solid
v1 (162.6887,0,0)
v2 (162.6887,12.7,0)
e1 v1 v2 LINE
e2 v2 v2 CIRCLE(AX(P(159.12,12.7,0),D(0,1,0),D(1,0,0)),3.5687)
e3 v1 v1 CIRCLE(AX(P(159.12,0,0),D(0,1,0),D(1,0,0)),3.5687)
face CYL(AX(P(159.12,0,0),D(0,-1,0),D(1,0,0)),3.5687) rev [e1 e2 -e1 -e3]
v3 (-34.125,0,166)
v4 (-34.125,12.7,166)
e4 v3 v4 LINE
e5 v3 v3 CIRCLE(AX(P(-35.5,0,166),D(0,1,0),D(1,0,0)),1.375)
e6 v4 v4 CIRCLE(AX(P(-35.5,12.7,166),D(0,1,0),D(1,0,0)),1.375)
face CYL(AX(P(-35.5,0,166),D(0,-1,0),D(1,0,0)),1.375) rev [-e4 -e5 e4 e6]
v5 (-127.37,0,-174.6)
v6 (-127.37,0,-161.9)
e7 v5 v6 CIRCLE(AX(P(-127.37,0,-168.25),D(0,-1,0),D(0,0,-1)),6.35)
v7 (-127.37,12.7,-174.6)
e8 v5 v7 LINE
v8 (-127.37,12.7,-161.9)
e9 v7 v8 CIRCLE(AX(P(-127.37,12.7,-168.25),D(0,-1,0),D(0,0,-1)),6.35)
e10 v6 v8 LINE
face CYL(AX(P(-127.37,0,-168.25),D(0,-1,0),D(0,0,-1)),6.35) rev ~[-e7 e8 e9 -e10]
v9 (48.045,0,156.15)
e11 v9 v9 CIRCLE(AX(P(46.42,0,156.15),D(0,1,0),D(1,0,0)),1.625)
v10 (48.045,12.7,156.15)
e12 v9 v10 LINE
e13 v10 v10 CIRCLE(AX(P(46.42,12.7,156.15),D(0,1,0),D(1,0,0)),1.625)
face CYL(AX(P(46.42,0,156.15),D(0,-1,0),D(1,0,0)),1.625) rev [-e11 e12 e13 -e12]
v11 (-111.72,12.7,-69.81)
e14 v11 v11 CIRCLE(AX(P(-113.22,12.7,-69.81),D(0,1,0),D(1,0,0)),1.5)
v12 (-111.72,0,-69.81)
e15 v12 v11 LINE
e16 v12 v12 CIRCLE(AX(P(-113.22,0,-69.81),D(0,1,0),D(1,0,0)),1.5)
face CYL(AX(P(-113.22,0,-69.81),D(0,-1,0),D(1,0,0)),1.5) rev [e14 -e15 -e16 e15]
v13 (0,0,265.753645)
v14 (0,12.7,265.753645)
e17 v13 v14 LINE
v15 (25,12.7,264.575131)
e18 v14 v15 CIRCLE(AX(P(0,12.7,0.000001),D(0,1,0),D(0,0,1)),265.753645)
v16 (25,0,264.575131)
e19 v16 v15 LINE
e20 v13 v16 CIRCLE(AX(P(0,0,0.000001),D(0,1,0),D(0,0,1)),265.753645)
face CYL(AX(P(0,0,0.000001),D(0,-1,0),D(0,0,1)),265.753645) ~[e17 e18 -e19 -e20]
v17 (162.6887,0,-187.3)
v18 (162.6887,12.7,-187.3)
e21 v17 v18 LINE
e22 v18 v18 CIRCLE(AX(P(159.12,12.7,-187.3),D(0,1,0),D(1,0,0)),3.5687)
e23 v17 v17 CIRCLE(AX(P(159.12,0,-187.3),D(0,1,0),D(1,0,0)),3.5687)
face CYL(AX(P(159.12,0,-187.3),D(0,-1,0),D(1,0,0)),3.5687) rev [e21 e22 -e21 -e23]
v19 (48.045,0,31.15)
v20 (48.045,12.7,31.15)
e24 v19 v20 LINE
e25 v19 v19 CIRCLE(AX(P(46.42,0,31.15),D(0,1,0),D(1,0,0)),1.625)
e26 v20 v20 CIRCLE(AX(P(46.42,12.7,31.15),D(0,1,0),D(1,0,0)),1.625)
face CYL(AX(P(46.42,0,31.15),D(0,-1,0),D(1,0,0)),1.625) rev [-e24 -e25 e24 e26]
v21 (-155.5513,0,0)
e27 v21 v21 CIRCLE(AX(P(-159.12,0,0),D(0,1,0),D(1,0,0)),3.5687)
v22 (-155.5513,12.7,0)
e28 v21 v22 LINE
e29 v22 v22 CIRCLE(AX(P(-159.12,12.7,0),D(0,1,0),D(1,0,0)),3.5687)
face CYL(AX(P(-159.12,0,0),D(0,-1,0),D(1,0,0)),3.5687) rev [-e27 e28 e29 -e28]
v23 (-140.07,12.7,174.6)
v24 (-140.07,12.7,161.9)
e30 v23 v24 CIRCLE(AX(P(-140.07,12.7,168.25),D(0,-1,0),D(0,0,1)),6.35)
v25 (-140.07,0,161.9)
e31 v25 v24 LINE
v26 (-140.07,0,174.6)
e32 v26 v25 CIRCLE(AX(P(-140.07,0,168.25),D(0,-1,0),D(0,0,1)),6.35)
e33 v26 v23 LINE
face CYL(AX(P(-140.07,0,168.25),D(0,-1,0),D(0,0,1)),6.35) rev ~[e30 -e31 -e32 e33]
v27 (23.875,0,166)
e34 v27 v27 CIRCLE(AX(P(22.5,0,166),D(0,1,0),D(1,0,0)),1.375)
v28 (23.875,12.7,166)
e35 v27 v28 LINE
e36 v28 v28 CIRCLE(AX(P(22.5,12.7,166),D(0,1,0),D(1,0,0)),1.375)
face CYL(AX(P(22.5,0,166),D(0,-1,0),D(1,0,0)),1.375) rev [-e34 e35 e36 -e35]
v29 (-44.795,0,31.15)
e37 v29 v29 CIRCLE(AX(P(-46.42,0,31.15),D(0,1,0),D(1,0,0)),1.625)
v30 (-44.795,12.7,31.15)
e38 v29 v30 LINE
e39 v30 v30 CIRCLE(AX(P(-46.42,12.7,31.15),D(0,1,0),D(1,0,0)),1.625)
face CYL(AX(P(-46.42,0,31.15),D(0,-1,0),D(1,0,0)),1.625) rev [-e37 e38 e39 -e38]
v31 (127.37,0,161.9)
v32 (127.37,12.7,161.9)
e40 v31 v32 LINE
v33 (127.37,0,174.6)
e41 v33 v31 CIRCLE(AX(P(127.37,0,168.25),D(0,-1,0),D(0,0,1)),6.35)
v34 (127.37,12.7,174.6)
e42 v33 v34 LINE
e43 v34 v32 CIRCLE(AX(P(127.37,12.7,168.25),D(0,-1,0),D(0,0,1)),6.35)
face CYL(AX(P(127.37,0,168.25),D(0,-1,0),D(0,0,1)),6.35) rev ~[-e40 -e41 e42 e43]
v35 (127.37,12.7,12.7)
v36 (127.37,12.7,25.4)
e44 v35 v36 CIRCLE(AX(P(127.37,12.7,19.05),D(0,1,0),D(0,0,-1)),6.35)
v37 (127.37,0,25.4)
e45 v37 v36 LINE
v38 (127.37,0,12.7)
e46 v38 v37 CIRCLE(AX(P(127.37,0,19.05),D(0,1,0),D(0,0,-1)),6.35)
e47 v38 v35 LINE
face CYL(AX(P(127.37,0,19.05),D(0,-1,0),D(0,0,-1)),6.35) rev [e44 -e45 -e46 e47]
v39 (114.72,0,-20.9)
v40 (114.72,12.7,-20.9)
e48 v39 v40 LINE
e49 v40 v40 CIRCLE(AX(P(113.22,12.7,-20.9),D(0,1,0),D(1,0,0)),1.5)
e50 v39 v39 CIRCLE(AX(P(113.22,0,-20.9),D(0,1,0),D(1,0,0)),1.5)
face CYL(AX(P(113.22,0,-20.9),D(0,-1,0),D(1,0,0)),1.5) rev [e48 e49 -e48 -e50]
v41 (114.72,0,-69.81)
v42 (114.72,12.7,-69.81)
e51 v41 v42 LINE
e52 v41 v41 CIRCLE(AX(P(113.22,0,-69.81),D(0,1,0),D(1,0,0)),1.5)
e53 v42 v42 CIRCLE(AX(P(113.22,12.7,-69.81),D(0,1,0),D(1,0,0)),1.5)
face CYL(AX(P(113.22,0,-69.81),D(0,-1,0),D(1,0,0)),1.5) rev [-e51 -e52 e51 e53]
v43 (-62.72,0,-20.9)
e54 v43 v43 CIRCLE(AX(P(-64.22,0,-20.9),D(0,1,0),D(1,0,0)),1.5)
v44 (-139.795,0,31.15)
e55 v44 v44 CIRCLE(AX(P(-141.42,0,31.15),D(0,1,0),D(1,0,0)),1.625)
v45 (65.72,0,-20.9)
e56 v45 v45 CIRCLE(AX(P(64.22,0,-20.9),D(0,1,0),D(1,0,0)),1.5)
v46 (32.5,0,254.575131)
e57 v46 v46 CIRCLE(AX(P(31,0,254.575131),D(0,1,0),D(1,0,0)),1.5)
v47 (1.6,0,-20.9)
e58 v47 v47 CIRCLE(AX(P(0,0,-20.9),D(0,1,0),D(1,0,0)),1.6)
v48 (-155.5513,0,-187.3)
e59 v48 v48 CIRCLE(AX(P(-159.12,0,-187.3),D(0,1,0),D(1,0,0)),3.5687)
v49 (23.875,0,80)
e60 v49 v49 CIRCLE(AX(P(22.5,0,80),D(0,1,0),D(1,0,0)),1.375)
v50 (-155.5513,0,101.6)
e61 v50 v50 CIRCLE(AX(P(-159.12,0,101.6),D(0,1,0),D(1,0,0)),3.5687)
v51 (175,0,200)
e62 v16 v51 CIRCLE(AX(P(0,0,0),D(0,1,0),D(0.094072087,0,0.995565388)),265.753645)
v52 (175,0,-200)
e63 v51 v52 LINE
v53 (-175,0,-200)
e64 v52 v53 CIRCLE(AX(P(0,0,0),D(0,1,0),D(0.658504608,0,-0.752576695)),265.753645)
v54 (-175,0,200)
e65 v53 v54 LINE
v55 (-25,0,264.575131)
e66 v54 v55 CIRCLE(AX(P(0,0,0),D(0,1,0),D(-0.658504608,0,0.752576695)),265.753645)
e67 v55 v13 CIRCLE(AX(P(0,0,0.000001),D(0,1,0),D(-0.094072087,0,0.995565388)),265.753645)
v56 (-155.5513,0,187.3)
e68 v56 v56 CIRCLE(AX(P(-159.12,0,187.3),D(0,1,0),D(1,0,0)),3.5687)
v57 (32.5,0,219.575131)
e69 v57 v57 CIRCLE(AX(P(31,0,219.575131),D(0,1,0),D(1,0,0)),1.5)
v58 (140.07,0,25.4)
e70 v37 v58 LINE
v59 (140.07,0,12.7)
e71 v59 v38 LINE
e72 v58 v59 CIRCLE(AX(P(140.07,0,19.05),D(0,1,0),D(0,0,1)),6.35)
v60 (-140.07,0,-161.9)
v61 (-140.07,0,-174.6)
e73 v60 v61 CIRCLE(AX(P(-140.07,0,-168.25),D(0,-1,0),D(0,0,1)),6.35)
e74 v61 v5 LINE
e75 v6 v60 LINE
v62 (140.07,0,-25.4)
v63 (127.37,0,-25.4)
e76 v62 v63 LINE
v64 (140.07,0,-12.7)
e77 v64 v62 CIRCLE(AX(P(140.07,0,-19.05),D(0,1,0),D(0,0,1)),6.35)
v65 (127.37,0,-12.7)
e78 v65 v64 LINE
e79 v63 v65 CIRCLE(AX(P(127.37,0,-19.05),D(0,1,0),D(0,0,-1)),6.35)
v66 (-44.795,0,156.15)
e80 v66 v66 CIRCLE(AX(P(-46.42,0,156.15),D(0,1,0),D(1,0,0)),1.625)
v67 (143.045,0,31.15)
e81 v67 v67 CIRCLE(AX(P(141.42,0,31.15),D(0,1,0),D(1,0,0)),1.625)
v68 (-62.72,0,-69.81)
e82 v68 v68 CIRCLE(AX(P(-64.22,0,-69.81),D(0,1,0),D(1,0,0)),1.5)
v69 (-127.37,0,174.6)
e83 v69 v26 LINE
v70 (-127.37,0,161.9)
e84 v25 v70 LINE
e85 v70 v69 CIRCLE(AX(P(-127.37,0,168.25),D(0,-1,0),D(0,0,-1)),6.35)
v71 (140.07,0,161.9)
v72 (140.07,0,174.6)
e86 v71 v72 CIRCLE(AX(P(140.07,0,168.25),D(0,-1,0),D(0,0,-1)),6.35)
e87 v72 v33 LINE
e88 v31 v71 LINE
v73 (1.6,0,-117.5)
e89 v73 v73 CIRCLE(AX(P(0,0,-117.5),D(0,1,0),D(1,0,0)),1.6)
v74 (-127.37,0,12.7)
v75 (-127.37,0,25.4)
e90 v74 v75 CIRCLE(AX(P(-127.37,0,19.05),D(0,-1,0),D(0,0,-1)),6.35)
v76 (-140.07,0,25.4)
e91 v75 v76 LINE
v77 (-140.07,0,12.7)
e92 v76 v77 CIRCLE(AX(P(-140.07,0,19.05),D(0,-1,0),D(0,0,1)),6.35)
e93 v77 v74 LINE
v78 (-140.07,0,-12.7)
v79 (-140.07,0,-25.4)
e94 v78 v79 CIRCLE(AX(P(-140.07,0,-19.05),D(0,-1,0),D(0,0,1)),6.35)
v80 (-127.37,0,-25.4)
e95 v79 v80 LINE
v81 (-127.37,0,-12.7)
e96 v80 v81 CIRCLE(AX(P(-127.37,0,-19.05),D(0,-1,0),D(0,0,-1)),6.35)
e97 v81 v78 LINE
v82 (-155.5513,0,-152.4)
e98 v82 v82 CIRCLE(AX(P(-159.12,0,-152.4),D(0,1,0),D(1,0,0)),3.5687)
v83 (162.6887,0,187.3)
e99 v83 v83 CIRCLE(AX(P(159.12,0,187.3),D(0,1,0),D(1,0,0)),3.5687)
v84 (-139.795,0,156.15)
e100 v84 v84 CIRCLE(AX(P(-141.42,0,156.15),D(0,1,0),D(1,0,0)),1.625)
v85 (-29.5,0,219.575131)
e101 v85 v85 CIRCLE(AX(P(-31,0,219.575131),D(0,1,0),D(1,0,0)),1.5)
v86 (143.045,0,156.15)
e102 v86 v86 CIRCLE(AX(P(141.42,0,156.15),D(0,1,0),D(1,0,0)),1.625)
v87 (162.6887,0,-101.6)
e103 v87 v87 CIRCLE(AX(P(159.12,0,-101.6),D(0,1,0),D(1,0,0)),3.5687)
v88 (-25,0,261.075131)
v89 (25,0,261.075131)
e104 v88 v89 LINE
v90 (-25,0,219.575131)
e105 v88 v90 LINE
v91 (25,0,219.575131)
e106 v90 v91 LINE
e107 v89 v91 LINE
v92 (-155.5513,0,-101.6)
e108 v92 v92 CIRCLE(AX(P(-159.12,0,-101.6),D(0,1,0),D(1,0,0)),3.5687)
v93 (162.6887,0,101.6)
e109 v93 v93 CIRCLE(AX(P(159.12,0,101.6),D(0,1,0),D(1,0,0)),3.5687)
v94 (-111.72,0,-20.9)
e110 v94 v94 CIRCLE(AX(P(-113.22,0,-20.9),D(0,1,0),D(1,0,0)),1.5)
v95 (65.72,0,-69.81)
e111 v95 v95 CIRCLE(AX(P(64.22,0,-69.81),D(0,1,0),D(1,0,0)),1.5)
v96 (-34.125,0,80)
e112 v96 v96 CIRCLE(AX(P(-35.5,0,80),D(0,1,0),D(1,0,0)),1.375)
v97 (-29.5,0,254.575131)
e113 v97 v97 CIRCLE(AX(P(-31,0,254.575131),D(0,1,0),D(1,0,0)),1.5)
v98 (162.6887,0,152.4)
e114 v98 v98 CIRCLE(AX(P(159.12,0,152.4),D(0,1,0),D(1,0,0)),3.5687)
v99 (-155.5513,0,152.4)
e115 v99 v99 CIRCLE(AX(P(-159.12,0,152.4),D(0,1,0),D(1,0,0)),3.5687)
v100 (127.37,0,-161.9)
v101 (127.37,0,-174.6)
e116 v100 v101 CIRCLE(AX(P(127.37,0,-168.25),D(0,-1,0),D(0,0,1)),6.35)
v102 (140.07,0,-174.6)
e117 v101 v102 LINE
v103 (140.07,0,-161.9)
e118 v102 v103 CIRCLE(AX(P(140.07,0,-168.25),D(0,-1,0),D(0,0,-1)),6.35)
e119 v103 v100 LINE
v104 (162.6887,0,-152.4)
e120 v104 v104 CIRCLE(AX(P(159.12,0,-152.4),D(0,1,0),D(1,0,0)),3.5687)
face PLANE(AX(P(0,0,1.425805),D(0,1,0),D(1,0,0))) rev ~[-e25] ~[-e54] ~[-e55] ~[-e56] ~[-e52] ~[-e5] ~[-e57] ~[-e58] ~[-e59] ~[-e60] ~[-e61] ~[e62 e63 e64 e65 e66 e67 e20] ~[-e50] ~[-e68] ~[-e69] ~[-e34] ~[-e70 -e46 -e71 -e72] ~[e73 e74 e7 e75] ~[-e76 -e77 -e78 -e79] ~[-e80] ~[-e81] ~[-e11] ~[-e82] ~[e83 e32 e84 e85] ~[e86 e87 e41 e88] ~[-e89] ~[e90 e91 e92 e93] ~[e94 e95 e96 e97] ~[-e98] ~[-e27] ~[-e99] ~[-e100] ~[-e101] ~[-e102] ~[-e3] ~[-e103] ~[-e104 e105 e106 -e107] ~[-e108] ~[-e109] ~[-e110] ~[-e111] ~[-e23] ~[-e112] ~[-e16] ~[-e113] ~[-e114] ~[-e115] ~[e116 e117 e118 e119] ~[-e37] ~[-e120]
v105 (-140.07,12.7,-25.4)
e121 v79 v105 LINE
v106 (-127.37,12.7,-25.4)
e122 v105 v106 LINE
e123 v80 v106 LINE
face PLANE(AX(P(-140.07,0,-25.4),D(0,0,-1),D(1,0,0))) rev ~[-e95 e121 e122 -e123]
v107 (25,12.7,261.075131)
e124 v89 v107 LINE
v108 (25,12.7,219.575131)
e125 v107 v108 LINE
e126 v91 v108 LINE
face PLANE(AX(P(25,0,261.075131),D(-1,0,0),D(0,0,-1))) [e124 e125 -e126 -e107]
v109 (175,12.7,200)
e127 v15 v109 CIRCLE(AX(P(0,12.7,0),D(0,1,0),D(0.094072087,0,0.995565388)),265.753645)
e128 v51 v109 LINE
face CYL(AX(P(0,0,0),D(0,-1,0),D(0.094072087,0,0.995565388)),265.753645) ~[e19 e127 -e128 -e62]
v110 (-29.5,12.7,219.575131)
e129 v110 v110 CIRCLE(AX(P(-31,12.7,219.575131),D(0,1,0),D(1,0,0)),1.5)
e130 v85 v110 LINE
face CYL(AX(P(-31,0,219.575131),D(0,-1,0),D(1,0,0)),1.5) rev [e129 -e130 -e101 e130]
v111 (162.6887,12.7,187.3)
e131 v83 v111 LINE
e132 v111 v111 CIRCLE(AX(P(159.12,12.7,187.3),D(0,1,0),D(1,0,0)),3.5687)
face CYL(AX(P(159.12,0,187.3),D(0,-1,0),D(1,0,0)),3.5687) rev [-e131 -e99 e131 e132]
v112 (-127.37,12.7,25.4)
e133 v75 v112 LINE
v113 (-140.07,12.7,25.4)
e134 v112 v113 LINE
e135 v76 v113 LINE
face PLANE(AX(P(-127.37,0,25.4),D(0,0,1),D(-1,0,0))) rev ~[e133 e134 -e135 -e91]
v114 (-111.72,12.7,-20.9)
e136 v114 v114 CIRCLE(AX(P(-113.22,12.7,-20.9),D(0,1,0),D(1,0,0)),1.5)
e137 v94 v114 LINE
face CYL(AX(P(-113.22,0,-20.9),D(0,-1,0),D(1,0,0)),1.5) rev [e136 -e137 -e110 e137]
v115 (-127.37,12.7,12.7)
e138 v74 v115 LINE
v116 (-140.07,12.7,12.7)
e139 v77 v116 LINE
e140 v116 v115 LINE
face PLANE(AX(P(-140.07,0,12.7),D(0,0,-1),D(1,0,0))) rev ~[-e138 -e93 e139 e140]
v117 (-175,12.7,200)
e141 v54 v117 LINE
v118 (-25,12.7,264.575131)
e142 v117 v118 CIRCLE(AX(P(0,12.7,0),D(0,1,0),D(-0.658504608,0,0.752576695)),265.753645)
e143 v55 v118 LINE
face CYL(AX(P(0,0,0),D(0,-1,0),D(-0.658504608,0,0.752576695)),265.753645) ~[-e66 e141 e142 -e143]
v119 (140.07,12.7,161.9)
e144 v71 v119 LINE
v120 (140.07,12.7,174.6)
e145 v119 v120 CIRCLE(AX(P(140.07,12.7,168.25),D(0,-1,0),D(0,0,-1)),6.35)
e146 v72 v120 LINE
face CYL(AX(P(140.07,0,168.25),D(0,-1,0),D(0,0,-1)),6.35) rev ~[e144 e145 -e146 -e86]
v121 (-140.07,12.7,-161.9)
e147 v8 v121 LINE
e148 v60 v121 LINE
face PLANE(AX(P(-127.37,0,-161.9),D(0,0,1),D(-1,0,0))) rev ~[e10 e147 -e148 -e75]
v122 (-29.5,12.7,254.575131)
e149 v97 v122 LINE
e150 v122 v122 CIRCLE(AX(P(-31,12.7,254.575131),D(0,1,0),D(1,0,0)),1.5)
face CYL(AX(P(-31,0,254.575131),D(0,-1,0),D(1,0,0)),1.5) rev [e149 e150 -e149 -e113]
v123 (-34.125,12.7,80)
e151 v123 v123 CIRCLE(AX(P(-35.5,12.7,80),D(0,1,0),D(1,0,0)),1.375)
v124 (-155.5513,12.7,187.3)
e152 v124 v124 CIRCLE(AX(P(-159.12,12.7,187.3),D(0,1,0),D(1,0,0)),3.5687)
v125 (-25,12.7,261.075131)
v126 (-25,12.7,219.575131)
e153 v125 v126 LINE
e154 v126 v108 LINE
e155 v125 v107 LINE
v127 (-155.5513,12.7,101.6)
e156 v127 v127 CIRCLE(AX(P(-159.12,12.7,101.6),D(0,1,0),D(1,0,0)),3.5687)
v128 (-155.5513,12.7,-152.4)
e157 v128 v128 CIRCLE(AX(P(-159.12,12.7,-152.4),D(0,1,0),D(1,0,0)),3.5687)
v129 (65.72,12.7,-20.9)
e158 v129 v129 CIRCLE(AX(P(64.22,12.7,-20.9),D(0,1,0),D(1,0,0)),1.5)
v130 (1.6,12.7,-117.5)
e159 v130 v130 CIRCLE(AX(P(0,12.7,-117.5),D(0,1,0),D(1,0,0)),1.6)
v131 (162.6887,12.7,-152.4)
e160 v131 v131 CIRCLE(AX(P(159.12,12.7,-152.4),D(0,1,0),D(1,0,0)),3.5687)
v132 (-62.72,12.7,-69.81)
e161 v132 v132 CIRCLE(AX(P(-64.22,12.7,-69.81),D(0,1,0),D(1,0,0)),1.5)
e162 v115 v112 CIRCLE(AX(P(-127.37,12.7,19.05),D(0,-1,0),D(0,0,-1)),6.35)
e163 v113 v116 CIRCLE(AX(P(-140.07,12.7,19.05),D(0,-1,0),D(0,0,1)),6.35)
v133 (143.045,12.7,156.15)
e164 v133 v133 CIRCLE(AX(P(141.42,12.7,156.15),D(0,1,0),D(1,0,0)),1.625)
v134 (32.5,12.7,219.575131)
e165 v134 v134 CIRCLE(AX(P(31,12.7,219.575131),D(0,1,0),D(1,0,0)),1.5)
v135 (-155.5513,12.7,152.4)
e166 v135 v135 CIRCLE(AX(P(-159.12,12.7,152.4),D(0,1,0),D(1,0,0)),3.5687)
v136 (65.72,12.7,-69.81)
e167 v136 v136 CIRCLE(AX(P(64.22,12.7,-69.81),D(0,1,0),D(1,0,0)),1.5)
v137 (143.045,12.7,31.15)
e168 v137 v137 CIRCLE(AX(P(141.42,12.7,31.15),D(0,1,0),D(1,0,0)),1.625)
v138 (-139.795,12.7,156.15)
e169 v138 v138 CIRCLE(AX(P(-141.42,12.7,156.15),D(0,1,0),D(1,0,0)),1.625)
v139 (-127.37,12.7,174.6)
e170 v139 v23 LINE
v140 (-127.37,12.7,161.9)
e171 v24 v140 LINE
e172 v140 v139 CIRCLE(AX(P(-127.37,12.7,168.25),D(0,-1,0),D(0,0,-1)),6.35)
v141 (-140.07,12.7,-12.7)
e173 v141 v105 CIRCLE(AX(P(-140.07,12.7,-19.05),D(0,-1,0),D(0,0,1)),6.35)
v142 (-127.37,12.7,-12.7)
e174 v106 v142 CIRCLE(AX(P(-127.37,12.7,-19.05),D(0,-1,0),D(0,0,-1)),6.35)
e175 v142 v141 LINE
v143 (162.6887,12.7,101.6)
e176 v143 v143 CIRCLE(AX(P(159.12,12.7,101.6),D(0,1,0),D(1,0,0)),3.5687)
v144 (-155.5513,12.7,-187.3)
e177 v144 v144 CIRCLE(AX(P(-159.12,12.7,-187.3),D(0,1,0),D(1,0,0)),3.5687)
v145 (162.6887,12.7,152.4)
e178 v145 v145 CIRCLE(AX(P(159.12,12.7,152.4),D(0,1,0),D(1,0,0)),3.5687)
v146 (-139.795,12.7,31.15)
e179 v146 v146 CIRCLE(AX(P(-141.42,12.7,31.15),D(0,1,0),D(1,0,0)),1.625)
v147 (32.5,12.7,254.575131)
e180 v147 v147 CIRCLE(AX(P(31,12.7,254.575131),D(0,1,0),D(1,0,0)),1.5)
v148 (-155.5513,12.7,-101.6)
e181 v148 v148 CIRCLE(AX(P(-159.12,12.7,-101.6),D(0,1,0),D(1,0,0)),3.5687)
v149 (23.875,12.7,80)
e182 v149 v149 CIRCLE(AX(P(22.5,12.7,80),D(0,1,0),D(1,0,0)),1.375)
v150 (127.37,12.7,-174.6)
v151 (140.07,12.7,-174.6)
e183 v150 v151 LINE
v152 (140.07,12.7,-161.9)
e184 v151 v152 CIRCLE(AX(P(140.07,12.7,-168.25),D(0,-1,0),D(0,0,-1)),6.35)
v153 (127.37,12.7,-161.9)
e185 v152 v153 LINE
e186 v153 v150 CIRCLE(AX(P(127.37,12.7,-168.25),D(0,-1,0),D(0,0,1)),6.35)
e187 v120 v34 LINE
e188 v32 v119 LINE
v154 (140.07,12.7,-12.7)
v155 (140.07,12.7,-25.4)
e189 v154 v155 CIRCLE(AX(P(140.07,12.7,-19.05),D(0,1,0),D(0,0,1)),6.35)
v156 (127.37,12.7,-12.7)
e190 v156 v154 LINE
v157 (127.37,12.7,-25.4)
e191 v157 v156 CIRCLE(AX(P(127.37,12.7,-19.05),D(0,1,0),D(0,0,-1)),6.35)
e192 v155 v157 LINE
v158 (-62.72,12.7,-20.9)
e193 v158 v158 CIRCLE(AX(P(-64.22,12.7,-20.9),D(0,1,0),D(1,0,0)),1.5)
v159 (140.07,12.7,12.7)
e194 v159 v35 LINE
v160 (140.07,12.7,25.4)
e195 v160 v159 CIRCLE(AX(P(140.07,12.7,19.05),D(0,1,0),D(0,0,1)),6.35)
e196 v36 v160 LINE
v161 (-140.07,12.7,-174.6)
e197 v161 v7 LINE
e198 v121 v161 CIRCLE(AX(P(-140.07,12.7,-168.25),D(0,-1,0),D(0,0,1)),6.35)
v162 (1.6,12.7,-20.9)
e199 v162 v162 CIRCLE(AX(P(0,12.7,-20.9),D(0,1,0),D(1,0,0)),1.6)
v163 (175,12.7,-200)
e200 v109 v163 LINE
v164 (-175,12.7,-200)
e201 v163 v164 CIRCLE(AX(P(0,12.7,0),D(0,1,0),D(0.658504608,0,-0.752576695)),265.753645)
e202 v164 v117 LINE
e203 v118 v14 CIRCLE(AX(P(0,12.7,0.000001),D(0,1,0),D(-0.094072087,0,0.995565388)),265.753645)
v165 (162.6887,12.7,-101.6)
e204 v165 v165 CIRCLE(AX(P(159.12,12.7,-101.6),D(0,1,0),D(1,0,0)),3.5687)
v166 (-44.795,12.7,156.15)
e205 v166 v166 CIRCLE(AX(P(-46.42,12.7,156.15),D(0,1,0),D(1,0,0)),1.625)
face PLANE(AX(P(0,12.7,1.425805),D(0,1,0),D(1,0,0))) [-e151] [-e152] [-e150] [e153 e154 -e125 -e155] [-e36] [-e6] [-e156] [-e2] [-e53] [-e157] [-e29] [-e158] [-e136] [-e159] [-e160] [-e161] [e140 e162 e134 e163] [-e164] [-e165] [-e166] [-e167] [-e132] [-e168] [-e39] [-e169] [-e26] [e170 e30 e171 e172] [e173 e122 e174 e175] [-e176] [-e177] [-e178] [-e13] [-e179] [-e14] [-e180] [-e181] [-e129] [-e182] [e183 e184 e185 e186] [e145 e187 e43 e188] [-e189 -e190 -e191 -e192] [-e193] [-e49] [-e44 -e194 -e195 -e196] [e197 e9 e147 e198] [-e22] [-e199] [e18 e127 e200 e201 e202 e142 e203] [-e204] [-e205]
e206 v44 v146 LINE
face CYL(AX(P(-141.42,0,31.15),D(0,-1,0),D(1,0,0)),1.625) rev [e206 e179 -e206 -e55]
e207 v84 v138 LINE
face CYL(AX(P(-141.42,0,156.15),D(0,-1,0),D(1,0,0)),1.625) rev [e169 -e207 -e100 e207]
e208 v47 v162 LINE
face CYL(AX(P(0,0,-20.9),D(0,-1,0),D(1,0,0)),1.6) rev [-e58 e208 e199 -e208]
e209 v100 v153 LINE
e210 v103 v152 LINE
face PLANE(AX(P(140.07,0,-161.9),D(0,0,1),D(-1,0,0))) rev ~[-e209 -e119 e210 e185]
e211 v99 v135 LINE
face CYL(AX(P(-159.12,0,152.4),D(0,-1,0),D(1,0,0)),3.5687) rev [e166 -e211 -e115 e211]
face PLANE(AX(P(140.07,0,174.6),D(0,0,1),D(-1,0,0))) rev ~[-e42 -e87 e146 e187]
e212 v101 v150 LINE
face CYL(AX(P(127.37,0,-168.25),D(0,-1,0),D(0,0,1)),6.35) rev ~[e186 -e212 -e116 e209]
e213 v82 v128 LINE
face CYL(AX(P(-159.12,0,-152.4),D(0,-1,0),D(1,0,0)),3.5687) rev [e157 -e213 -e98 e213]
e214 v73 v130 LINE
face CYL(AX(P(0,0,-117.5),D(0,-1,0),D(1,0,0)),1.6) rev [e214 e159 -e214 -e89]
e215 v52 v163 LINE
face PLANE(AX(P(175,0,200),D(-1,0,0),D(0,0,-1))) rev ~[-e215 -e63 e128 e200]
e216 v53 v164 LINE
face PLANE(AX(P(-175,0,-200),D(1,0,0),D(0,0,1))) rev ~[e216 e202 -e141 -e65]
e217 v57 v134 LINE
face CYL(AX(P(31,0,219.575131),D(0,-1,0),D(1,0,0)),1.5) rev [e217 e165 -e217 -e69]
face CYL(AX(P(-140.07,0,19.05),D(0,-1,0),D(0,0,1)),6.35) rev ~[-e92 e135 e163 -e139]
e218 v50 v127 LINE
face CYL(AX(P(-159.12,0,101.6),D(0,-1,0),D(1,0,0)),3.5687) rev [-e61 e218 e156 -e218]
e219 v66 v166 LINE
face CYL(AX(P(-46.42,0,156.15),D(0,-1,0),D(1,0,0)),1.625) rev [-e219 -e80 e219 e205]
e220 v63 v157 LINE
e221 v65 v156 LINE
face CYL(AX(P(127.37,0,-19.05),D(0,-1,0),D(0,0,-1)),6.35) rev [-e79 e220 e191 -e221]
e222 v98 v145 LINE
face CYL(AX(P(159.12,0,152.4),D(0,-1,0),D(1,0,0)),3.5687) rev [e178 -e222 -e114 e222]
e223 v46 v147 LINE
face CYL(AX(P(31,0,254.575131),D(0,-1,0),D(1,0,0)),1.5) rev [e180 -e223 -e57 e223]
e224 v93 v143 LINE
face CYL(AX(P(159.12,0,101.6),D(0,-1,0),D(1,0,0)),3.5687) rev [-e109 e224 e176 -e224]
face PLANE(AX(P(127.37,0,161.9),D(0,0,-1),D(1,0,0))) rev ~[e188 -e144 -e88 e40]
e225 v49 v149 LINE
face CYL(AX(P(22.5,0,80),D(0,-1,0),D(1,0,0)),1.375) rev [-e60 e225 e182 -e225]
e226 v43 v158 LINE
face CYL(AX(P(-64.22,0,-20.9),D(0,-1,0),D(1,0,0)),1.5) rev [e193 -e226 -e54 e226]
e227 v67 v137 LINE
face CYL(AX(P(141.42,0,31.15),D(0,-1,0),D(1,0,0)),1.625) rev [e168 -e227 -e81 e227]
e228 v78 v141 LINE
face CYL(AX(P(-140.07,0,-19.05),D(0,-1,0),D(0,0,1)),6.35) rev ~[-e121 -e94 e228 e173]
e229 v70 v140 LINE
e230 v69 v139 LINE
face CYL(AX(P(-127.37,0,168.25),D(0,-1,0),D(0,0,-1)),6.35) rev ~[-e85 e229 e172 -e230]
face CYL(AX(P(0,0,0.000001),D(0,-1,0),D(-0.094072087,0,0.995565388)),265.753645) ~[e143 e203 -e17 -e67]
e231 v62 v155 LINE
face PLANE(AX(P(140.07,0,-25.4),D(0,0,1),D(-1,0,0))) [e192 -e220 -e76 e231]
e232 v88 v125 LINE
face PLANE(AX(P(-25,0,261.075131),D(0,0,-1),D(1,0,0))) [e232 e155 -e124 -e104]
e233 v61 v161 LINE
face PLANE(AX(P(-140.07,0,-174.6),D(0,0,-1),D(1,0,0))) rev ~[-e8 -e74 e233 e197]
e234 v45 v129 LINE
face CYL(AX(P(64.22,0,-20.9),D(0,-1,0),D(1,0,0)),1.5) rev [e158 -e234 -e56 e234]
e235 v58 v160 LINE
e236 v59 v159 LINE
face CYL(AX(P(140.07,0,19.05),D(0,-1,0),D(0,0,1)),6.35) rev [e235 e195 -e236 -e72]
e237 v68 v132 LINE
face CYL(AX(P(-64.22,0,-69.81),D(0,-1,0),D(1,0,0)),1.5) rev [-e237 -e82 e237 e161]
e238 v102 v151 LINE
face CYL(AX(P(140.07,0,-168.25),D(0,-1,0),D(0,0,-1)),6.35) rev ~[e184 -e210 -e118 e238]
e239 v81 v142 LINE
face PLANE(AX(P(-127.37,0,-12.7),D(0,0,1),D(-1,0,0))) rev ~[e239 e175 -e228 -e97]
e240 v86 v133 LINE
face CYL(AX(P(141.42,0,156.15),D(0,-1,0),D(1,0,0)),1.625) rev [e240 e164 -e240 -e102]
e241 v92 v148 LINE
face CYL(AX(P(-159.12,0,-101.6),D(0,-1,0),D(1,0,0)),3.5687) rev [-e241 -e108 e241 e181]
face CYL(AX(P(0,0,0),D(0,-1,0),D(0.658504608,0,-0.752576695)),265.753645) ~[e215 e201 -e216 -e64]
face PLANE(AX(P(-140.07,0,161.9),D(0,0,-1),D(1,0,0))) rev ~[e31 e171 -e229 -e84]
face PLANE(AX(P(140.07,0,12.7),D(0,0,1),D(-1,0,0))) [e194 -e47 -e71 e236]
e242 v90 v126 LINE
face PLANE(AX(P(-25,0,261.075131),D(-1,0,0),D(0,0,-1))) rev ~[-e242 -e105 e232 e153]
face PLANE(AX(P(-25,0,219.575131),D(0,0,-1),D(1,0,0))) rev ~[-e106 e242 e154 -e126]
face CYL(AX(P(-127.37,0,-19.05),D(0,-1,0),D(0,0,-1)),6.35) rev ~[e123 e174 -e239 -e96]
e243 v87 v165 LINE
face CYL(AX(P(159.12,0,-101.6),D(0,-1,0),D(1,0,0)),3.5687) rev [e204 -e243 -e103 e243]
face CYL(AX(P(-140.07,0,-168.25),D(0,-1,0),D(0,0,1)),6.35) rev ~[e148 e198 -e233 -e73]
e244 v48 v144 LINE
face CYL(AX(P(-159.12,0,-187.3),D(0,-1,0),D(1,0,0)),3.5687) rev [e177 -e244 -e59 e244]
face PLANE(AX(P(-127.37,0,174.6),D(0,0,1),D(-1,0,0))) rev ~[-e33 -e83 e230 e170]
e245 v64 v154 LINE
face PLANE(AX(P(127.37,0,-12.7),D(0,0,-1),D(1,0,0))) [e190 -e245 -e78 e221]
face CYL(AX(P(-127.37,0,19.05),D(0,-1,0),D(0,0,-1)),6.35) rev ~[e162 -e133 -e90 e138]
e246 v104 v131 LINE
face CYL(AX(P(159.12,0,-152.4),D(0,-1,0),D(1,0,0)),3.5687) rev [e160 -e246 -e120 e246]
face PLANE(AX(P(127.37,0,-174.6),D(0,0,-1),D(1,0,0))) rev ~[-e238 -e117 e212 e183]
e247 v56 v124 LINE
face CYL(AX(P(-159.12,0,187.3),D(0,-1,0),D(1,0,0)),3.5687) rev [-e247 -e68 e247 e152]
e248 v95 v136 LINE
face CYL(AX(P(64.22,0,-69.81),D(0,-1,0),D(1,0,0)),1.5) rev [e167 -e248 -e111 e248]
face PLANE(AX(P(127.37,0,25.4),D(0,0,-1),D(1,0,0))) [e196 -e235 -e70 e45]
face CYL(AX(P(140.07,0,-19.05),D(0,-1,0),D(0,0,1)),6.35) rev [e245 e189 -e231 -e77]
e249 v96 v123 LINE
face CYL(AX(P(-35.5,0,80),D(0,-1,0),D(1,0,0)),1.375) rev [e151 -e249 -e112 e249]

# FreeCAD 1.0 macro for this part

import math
import FreeCAD as App
import Part
import Sketcher
Q = App.Units.Quantity


def add_polygon(sketch, points):
    """Adds a closed chain of lines whose ends are joined by coincident constraints."""
    first, n = sketch.GeometryCount, len(points)
    for a, b in zip(points, points[1:] + points[:1]):
        sketch.addGeometry(Part.LineSegment(App.Vector(*a, 0), App.Vector(*b, 0)), False)
    for i in range(n):
        sketch.addConstraint(Sketcher.Constraint("Coincident", first + i, 2, first + (i + 1) % n, 1))

doc = App.newDocument("Part")
body = doc.addObject("PartDesign::Body", "Body")

# Sketch on XZ plane
sketch1 = body.newObject("Sketcher::SketchObject", "Sketch")
sketch1.AttachmentSupport = (doc.getObject("XZ_Plane"), [""])
sketch1.MapMode = "FlatFace"
sketch1.addGeometry(Part.LineSegment(App.Vector(175, 200, 0), App.Vector(175, -200, 0)), False)  # 0
sketch1.addGeometry(Part.ArcOfCircle(Part.Circle(App.Vector(0, 0, 0), App.Vector(0, 0, 1), 265.8), math.radians(-131), math.radians(-49)), False)  # 1
sketch1.addGeometry(Part.LineSegment(App.Vector(-175, -200, 0), App.Vector(-175, 200, 0)), False)  # 2
sketch1.addGeometry(Part.ArcOfCircle(Part.Circle(App.Vector(0, 0, 0), App.Vector(0, 0, 1), 265.8), math.radians(95), math.radians(131)), False)  # 3
sketch1.addGeometry(Part.ArcOfCircle(Part.Circle(App.Vector(0, 0, 0), App.Vector(0, 0, 1), 265.8), math.radians(90), math.radians(95.4)), False)  # 4
sketch1.addGeometry(Part.ArcOfCircle(Part.Circle(App.Vector(0, 0, 0), App.Vector(0, 0, 1), 265.8), math.radians(84.6), math.radians(90)), False)  # 5
sketch1.addGeometry(Part.ArcOfCircle(Part.Circle(App.Vector(0, 0, 0), App.Vector(0, 0, 1), 265.8), math.radians(49), math.radians(85)), False)  # 6
sketch1.addGeometry(Part.Circle(App.Vector(-159.1, 187.3, 0), App.Vector(0, 0, 1), 3.6), False)  # 7
sketch1.addGeometry(Part.Circle(App.Vector(-159.1, 152.4, 0), App.Vector(0, 0, 1), 3.6), False)  # 8
sketch1.addGeometry(Part.ArcOfCircle(Part.Circle(App.Vector(-140.1, 168.2, 0), App.Vector(0, 0, 1), 6.3), math.radians(90), math.radians(270)), False)  # 9
sketch1.addGeometry(Part.LineSegment(App.Vector(-140.1, 161.9, 0), App.Vector(-127.4, 161.9, 0)), False)  # 10
sketch1.addGeometry(Part.ArcOfCircle(Part.Circle(App.Vector(-127.4, 168.2, 0), App.Vector(0, 0, 1), 6.3), math.radians(-90), math.radians(90)), False)  # 11
sketch1.addGeometry(Part.LineSegment(App.Vector(-127.4, 174.6, 0), App.Vector(-140.1, 174.6, 0)), False)  # 12
sketch1.addGeometry(Part.Circle(App.Vector(-141.4, 156.2, 0), App.Vector(0, 0, 1), 1.6), False)  # 13
sketch1.addGeometry(Part.Circle(App.Vector(-31, 254.6, 0), App.Vector(0, 0, 1), 1.5), False)  # 14
sketch1.addGeometry(Part.Circle(App.Vector(-31, 219.6, 0), App.Vector(0, 0, 1), 1.5), False)  # 15
sketch1.addGeometry(Part.Circle(App.Vector(-46.4, 156.2, 0), App.Vector(0, 0, 1), 1.6), False)  # 16
sketch1.addGeometry(Part.Circle(App.Vector(-35.5, 166, 0), App.Vector(0, 0, 1), 1.4), False)  # 17
sketch1.addGeometry(Part.Circle(App.Vector(-159.1, 101.6, 0), App.Vector(0, 0, 1), 3.6), False)  # 18
sketch1.addGeometry(Part.Circle(App.Vector(-35.5, 80, 0), App.Vector(0, 0, 1), 1.4), False)  # 19
add_polygon(sketch1, [(25, 261.1), (-25, 261.1), (-25, 219.6), (25, 219.6)])  # lines 20-23
sketch1.addGeometry(Part.Circle(App.Vector(31, 254.6, 0), App.Vector(0, 0, 1), 1.5), False)  # 24
sketch1.addGeometry(Part.Circle(App.Vector(31, 219.6, 0), App.Vector(0, 0, 1), 1.5), False)  # 25
sketch1.addGeometry(Part.Circle(App.Vector(22.5, 166, 0), App.Vector(0, 0, 1), 1.4), False)  # 26
sketch1.addGeometry(Part.Circle(App.Vector(46.4, 156.2, 0), App.Vector(0, 0, 1), 1.6), False)  # 27
sketch1.addGeometry(Part.Circle(App.Vector(159.1, 187.3, 0), App.Vector(0, 0, 1), 3.6), False)  # 28
sketch1.addGeometry(Part.ArcOfCircle(Part.Circle(App.Vector(127.4, 168.2, 0), App.Vector(0, 0, 1), 6.3), math.radians(90), math.radians(270)), False)  # 29
sketch1.addGeometry(Part.LineSegment(App.Vector(127.4, 161.9, 0), App.Vector(140.1, 161.9, 0)), False)  # 30
sketch1.addGeometry(Part.ArcOfCircle(Part.Circle(App.Vector(140.1, 168.2, 0), App.Vector(0, 0, 1), 6.3), math.radians(-90), math.radians(90)), False)  # 31
sketch1.addGeometry(Part.LineSegment(App.Vector(140.1, 174.6, 0), App.Vector(127.4, 174.6, 0)), False)  # 32
sketch1.addGeometry(Part.Circle(App.Vector(141.4, 156.2, 0), App.Vector(0, 0, 1), 1.6), False)  # 33
sketch1.addGeometry(Part.Circle(App.Vector(159.1, 152.4, 0), App.Vector(0, 0, 1), 3.6), False)  # 34
sketch1.addGeometry(Part.Circle(App.Vector(22.5, 80, 0), App.Vector(0, 0, 1), 1.4), False)  # 35
sketch1.addGeometry(Part.Circle(App.Vector(159.1, 101.6, 0), App.Vector(0, 0, 1), 3.6), False)  # 36
sketch1.addGeometry(Part.Circle(App.Vector(-141.4, 31.1, 0), App.Vector(0, 0, 1), 1.6), False)  # 37
sketch1.addGeometry(Part.ArcOfCircle(Part.Circle(App.Vector(-140.1, 19.1, 0), App.Vector(0, 0, 1), 6.3), math.radians(90), math.radians(270)), False)  # 38
sketch1.addGeometry(Part.LineSegment(App.Vector(-140.1, 12.7, 0), App.Vector(-127.4, 12.7, 0)), False)  # 39
sketch1.addGeometry(Part.ArcOfCircle(Part.Circle(App.Vector(-127.4, 19.1, 0), App.Vector(0, 0, 1), 6.3), math.radians(-90), math.radians(90)), False)  # 40
sketch1.addGeometry(Part.LineSegment(App.Vector(-127.4, 25.4, 0), App.Vector(-140.1, 25.4, 0)), False)  # 41
sketch1.addGeometry(Part.Circle(App.Vector(-159.1, 0, 0), App.Vector(0, 0, 1), 3.6), False)  # 42
sketch1.addGeometry(Part.ArcOfCircle(Part.Circle(App.Vector(-140.1, -19.1, 0), App.Vector(0, 0, 1), 6.3), math.radians(90), math.radians(270)), False)  # 43
sketch1.addGeometry(Part.LineSegment(App.Vector(-140.1, -25.4, 0), App.Vector(-127.4, -25.4, 0)), False)  # 44
sketch1.addGeometry(Part.ArcOfCircle(Part.Circle(App.Vector(-127.4, -19.1, 0), App.Vector(0, 0, 1), 6.3), math.radians(-90), math.radians(90)), False)  # 45
sketch1.addGeometry(Part.LineSegment(App.Vector(-127.4, -12.7, 0), App.Vector(-140.1, -12.7, 0)), False)  # 46
sketch1.addGeometry(Part.Circle(App.Vector(-113.2, -20.9, 0), App.Vector(0, 0, 1), 1.5), False)  # 47
sketch1.addGeometry(Part.Circle(App.Vector(-113.2, -69.8, 0), App.Vector(0, 0, 1), 1.5), False)  # 48
sketch1.addGeometry(Part.Circle(App.Vector(-46.4, 31.1, 0), App.Vector(0, 0, 1), 1.6), False)  # 49
sketch1.addGeometry(Part.Circle(App.Vector(-64.2, -20.9, 0), App.Vector(0, 0, 1), 1.5), False)  # 50
sketch1.addGeometry(Part.Circle(App.Vector(-64.2, -69.8, 0), App.Vector(0, 0, 1), 1.5), False)  # 51
sketch1.addGeometry(Part.Circle(App.Vector(-159.1, -101.6, 0), App.Vector(0, 0, 1), 3.6), False)  # 52
sketch1.addGeometry(Part.Circle(App.Vector(-159.1, -152.4, 0), App.Vector(0, 0, 1), 3.6), False)  # 53
sketch1.addGeometry(Part.Circle(App.Vector(-159.1, -187.3, 0), App.Vector(0, 0, 1), 3.6), False)  # 54
sketch1.addGeometry(Part.ArcOfCircle(Part.Circle(App.Vector(-140.1, -168.2, 0), App.Vector(0, 0, 1), 6.3), math.radians(90), math.radians(270)), False)  # 55
sketch1.addGeometry(Part.LineSegment(App.Vector(-140.1, -174.6, 0), App.Vector(-127.4, -174.6, 0)), False)  # 56
sketch1.addGeometry(Part.ArcOfCircle(Part.Circle(App.Vector(-127.4, -168.2, 0), App.Vector(0, 0, 1), 6.3), math.radians(-90), math.radians(90)), False)  # 57
sketch1.addGeometry(Part.LineSegment(App.Vector(-127.4, -161.9, 0), App.Vector(-140.1, -161.9, 0)), False)  # 58
sketch1.addGeometry(Part.Circle(App.Vector(0, -20.9, 0), App.Vector(0, 0, 1), 1.6), False)  # 59
sketch1.addGeometry(Part.Circle(App.Vector(46.4, 31.1, 0), App.Vector(0, 0, 1), 1.6), False)  # 60
sketch1.addGeometry(Part.Circle(App.Vector(64.2, -20.9, 0), App.Vector(0, 0, 1), 1.5), False)  # 61
sketch1.addGeometry(Part.Circle(App.Vector(64.2, -69.8, 0), App.Vector(0, 0, 1), 1.5), False)  # 62
sketch1.addGeometry(Part.Circle(App.Vector(113.2, -20.9, 0), App.Vector(0, 0, 1), 1.5), False)  # 63
sketch1.addGeometry(Part.Circle(App.Vector(141.4, 31.1, 0), App.Vector(0, 0, 1), 1.6), False)  # 64
sketch1.addGeometry(Part.LineSegment(App.Vector(127.4, 12.7, 0), App.Vector(140.1, 12.7, 0)), False)  # 65
sketch1.addGeometry(Part.ArcOfCircle(Part.Circle(App.Vector(140.1, 19.1, 0), App.Vector(0, 0, 1), 6.3), math.radians(-90), math.radians(90)), False)  # 66
sketch1.addGeometry(Part.LineSegment(App.Vector(140.1, 25.4, 0), App.Vector(127.4, 25.4, 0)), False)  # 67
sketch1.addGeometry(Part.ArcOfCircle(Part.Circle(App.Vector(127.4, 19.1, 0), App.Vector(0, 0, 1), 6.3), math.radians(90), math.radians(270)), False)  # 68
sketch1.addGeometry(Part.LineSegment(App.Vector(127.4, -25.4, 0), App.Vector(140.1, -25.4, 0)), False)  # 69
sketch1.addGeometry(Part.ArcOfCircle(Part.Circle(App.Vector(140.1, -19.1, 0), App.Vector(0, 0, 1), 6.3), math.radians(-90), math.radians(90)), False)  # 70
sketch1.addGeometry(Part.LineSegment(App.Vector(140.1, -12.7, 0), App.Vector(127.4, -12.7, 0)), False)  # 71
sketch1.addGeometry(Part.ArcOfCircle(Part.Circle(App.Vector(127.4, -19.1, 0), App.Vector(0, 0, 1), 6.3), math.radians(90), math.radians(270)), False)  # 72
sketch1.addGeometry(Part.Circle(App.Vector(159.1, 0, 0), App.Vector(0, 0, 1), 3.6), False)  # 73
sketch1.addGeometry(Part.Circle(App.Vector(113.2, -69.8, 0), App.Vector(0, 0, 1), 1.5), False)  # 74
sketch1.addGeometry(Part.Circle(App.Vector(0, -117.5, 0), App.Vector(0, 0, 1), 1.6), False)  # 75
sketch1.addGeometry(Part.Circle(App.Vector(159.1, -101.6, 0), App.Vector(0, 0, 1), 3.6), False)  # 76
sketch1.addGeometry(Part.Circle(App.Vector(159.1, -152.4, 0), App.Vector(0, 0, 1), 3.6), False)  # 77
sketch1.addGeometry(Part.ArcOfCircle(Part.Circle(App.Vector(127.4, -168.2, 0), App.Vector(0, 0, 1), 6.3), math.radians(90), math.radians(270)), False)  # 78
sketch1.addGeometry(Part.LineSegment(App.Vector(127.4, -174.6, 0), App.Vector(140.1, -174.6, 0)), False)  # 79
sketch1.addGeometry(Part.ArcOfCircle(Part.Circle(App.Vector(140.1, -168.2, 0), App.Vector(0, 0, 1), 6.3), math.radians(-90), math.radians(90)), False)  # 80
sketch1.addGeometry(Part.LineSegment(App.Vector(140.1, -161.9, 0), App.Vector(127.4, -161.9, 0)), False)  # 81
sketch1.addGeometry(Part.Circle(App.Vector(159.1, -187.3, 0), App.Vector(0, 0, 1), 3.6), False)  # 82
sketch1.addConstraint(Sketcher.Constraint("Coincident", 0, 2, 1, 2))
sketch1.addConstraint(Sketcher.Constraint("Coincident", 1, 1, 2, 1))
sketch1.addConstraint(Sketcher.Constraint("Coincident", 2, 2, 3, 2))
sketch1.addConstraint(Sketcher.Constraint("Tangent", 3, 1, 4, 2))
sketch1.addConstraint(Sketcher.Constraint("Tangent", 4, 1, 5, 2))
sketch1.addConstraint(Sketcher.Constraint("Tangent", 5, 1, 6, 2))
sketch1.addConstraint(Sketcher.Constraint("Coincident", 6, 1, 0, 1))
sketch1.addConstraint(Sketcher.Constraint("Tangent", 9, 2, 10, 1))
sketch1.addConstraint(Sketcher.Constraint("Tangent", 10, 2, 11, 1))
sketch1.addConstraint(Sketcher.Constraint("Tangent", 11, 2, 12, 1))
sketch1.addConstraint(Sketcher.Constraint("Tangent", 12, 2, 9, 1))
sketch1.addConstraint(Sketcher.Constraint("Tangent", 29, 2, 30, 1))
sketch1.addConstraint(Sketcher.Constraint("Tangent", 30, 2, 31, 1))
sketch1.addConstraint(Sketcher.Constraint("Tangent", 31, 2, 32, 1))
sketch1.addConstraint(Sketcher.Constraint("Tangent", 32, 2, 29, 1))
sketch1.addConstraint(Sketcher.Constraint("Tangent", 38, 2, 39, 1))
sketch1.addConstraint(Sketcher.Constraint("Tangent", 39, 2, 40, 1))
sketch1.addConstraint(Sketcher.Constraint("Tangent", 40, 2, 41, 1))
sketch1.addConstraint(Sketcher.Constraint("Tangent", 41, 2, 38, 1))
sketch1.addConstraint(Sketcher.Constraint("Tangent", 43, 2, 44, 1))
sketch1.addConstraint(Sketcher.Constraint("Tangent", 44, 2, 45, 1))
sketch1.addConstraint(Sketcher.Constraint("Tangent", 45, 2, 46, 1))
sketch1.addConstraint(Sketcher.Constraint("Tangent", 46, 2, 43, 1))
sketch1.addConstraint(Sketcher.Constraint("Tangent", 55, 2, 56, 1))
sketch1.addConstraint(Sketcher.Constraint("Tangent", 56, 2, 57, 1))
sketch1.addConstraint(Sketcher.Constraint("Tangent", 57, 2, 58, 1))
sketch1.addConstraint(Sketcher.Constraint("Tangent", 58, 2, 55, 1))
sketch1.addConstraint(Sketcher.Constraint("Tangent", 65, 2, 66, 1))
sketch1.addConstraint(Sketcher.Constraint("Tangent", 66, 2, 67, 1))
sketch1.addConstraint(Sketcher.Constraint("Tangent", 67, 2, 68, 1))
sketch1.addConstraint(Sketcher.Constraint("Tangent", 68, 2, 65, 1))
sketch1.addConstraint(Sketcher.Constraint("Tangent", 69, 2, 70, 1))
sketch1.addConstraint(Sketcher.Constraint("Tangent", 70, 2, 71, 1))
sketch1.addConstraint(Sketcher.Constraint("Tangent", 71, 2, 72, 1))
sketch1.addConstraint(Sketcher.Constraint("Tangent", 72, 2, 69, 1))
sketch1.addConstraint(Sketcher.Constraint("Tangent", 78, 2, 79, 1))
sketch1.addConstraint(Sketcher.Constraint("Tangent", 79, 2, 80, 1))
sketch1.addConstraint(Sketcher.Constraint("Tangent", 80, 2, 81, 1))
sketch1.addConstraint(Sketcher.Constraint("Tangent", 81, 2, 78, 1))
sketch1.addConstraint(Sketcher.Constraint("Vertical", 0))
sketch1.addConstraint(Sketcher.Constraint("Vertical", 2))
sketch1.addConstraint(Sketcher.Constraint("Horizontal", 10))
sketch1.addConstraint(Sketcher.Constraint("Horizontal", 12))
sketch1.addConstraint(Sketcher.Constraint("Horizontal", 20))
sketch1.addConstraint(Sketcher.Constraint("Vertical", 21))
sketch1.addConstraint(Sketcher.Constraint("Horizontal", 22))
sketch1.addConstraint(Sketcher.Constraint("Vertical", 23))
sketch1.addConstraint(Sketcher.Constraint("Horizontal", 30))
sketch1.addConstraint(Sketcher.Constraint("Horizontal", 32))
sketch1.addConstraint(Sketcher.Constraint("Horizontal", 39))
sketch1.addConstraint(Sketcher.Constraint("Horizontal", 41))
sketch1.addConstraint(Sketcher.Constraint("Horizontal", 44))
sketch1.addConstraint(Sketcher.Constraint("Horizontal", 46))
sketch1.addConstraint(Sketcher.Constraint("Horizontal", 56))
sketch1.addConstraint(Sketcher.Constraint("Horizontal", 58))
sketch1.addConstraint(Sketcher.Constraint("Horizontal", 65))
sketch1.addConstraint(Sketcher.Constraint("Horizontal", 67))
sketch1.addConstraint(Sketcher.Constraint("Horizontal", 69))
sketch1.addConstraint(Sketcher.Constraint("Horizontal", 71))
sketch1.addConstraint(Sketcher.Constraint("Horizontal", 79))
sketch1.addConstraint(Sketcher.Constraint("Horizontal", 81))
sketch1.addConstraint(Sketcher.Constraint("Coincident", 1, 3, -1, 1))
sketch1.addConstraint(Sketcher.Constraint("Coincident", 3, 3, -1, 1))
sketch1.addConstraint(Sketcher.Constraint("Coincident", 5, 3, -1, 1))
sketch1.addConstraint(Sketcher.Constraint("Equal", 1, 3))
sketch1.addConstraint(Sketcher.Constraint("Equal", 5, 6))
sketch1.addConstraint(Sketcher.Constraint("Equal", 7, 8))
sketch1.addConstraint(Sketcher.Constraint("Equal", 14, 15))
sketch1.addConstraint(Sketcher.Constraint("Equal", 13, 16))
sketch1.addConstraint(Sketcher.Constraint("Equal", 8, 18))
sketch1.addConstraint(Sketcher.Constraint("Equal", 17, 19))
sketch1.addConstraint(Sketcher.Constraint("Equal", 15, 24))
sketch1.addConstraint(Sketcher.Constraint("Equal", 24, 25))
sketch1.addConstraint(Sketcher.Constraint("Equal", 19, 26))
sketch1.addConstraint(Sketcher.Constraint("Equal", 16, 27))
sketch1.addConstraint(Sketcher.Constraint("Equal", 18, 28))
sketch1.addConstraint(Sketcher.Constraint("Equal", 11, 29))
sketch1.addConstraint(Sketcher.Constraint("Equal", 27, 33))
sketch1.addConstraint(Sketcher.Constraint("Equal", 28, 34))
sketch1.addConstraint(Sketcher.Constraint("Equal", 26, 35))
sketch1.addConstraint(Sketcher.Constraint("Equal", 34, 36))
sketch1.addConstraint(Sketcher.Constraint("Equal", 33, 37))
sketch1.addConstraint(Sketcher.Constraint("Equal", 31, 38))
sketch1.addConstraint(Sketcher.Constraint("Equal", 36, 42))
sketch1.addConstraint(Sketcher.Constraint("Equal", 40, 43))
sketch1.addConstraint(Sketcher.Constraint("Equal", 25, 47))
sketch1.addConstraint(Sketcher.Constraint("Equal", 47, 48))
sketch1.addConstraint(Sketcher.Constraint("Equal", 37, 49))
sketch1.addConstraint(Sketcher.Constraint("Equal", 48, 50))
sketch1.addConstraint(Sketcher.Constraint("Equal", 50, 51))
sketch1.addConstraint(Sketcher.Constraint("Equal", 42, 52))
sketch1.addConstraint(Sketcher.Constraint("Equal", 52, 53))
sketch1.addConstraint(Sketcher.Constraint("Equal", 53, 54))
sketch1.addConstraint(Sketcher.Constraint("Equal", 45, 55))
sketch1.addConstraint(Sketcher.Constraint("Equal", 49, 60))
sketch1.addConstraint(Sketcher.Constraint("Equal", 51, 61))
sketch1.addConstraint(Sketcher.Constraint("Equal", 61, 62))
sketch1.addConstraint(Sketcher.Constraint("Equal", 62, 63))
sketch1.addConstraint(Sketcher.Constraint("Equal", 60, 64))
sketch1.addConstraint(Sketcher.Constraint("Equal", 57, 66))
sketch1.addConstraint(Sketcher.Constraint("Equal", 68, 70))
sketch1.addConstraint(Sketcher.Constraint("Equal", 54, 73))
sketch1.addConstraint(Sketcher.Constraint("Equal", 63, 74))
sketch1.addConstraint(Sketcher.Constraint("Equal", 59, 75))
sketch1.addConstraint(Sketcher.Constraint("Equal", 73, 76))
sketch1.addConstraint(Sketcher.Constraint("Equal", 76, 77))
sketch1.addConstraint(Sketcher.Constraint("Equal", 72, 78))
sketch1.addConstraint(Sketcher.Constraint("Equal", 77, 82))
sketch1.addConstraint(Sketcher.Constraint("Symmetric", 36, 3, 52, 3, -1, 1))
sketch1.addConstraint(Sketcher.Constraint("Symmetric", 34, 3, 53, 3, -1, 1))
sketch1.addConstraint(Sketcher.Constraint("Symmetric", 28, 3, 54, 3, -1, 1))
sketch1.addConstraint(Sketcher.Constraint("Symmetric", 31, 3, 55, 3, -1, 1))
sketch1.addConstraint(Sketcher.Constraint("Symmetric", 43, 3, 66, 3, -1, 1))
sketch1.addConstraint(Sketcher.Constraint("Symmetric", 38, 3, 70, 3, -1, 1))
sketch1.addConstraint(Sketcher.Constraint("Symmetric", 42, 3, 73, 3, -1, 1))
sketch1.addConstraint(Sketcher.Constraint("Symmetric", 18, 3, 76, 3, -1, 1))
sketch1.addConstraint(Sketcher.Constraint("Symmetric", 8, 3, 77, 3, -1, 1))
sketch1.addConstraint(Sketcher.Constraint("Symmetric", 11, 3, 78, 3, -1, 1))
sketch1.addConstraint(Sketcher.Constraint("Symmetric", 7, 3, 82, 3, -1, 1))
sketch1.addConstraint(Sketcher.Constraint("Symmetric", 14, 3, 24, 3, -2))
sketch1.addConstraint(Sketcher.Constraint("Symmetric", 15, 3, 25, 3, -2))
sketch1.addConstraint(Sketcher.Constraint("Symmetric", 16, 3, 27, 3, -2))
sketch1.addConstraint(Sketcher.Constraint("Symmetric", 7, 3, 28, 3, -2))
sketch1.addConstraint(Sketcher.Constraint("Symmetric", 11, 3, 29, 3, -2))
sketch1.addConstraint(Sketcher.Constraint("Symmetric", 13, 3, 33, 3, -2))
sketch1.addConstraint(Sketcher.Constraint("Symmetric", 8, 3, 34, 3, -2))
sketch1.addConstraint(Sketcher.Constraint("Symmetric", 18, 3, 36, 3, -2))
sketch1.addConstraint(Sketcher.Constraint("Symmetric", 49, 3, 60, 3, -2))
sketch1.addConstraint(Sketcher.Constraint("Symmetric", 50, 3, 61, 3, -2))
sketch1.addConstraint(Sketcher.Constraint("Symmetric", 51, 3, 62, 3, -2))
sketch1.addConstraint(Sketcher.Constraint("Symmetric", 47, 3, 63, 3, -2))
sketch1.addConstraint(Sketcher.Constraint("Symmetric", 37, 3, 64, 3, -2))
sketch1.addConstraint(Sketcher.Constraint("Symmetric", 38, 3, 66, 3, -2))
sketch1.addConstraint(Sketcher.Constraint("Symmetric", 48, 3, 74, 3, -2))
sketch1.addConstraint(Sketcher.Constraint("PointOnObject", 42, 3, -1))
sketch1.addConstraint(Sketcher.Constraint("PointOnObject", 59, 3, -2))
sketch1.addConstraint(Sketcher.Constraint("PointOnObject", 75, 3, -2))
sketch1.addConstraint(Sketcher.Constraint("PointOnObject", 4, 1, -2))
sketch1.addConstraint(Sketcher.Constraint("Horizontal", 13, 3, 16, 3))
sketch1.addConstraint(Sketcher.Constraint("Horizontal", 17, 3, 26, 3))
sketch1.addConstraint(Sketcher.Constraint("Horizontal", 19, 3, 35, 3))
sketch1.addConstraint(Sketcher.Constraint("Horizontal", 37, 3, 49, 3))
sketch1.addConstraint(Sketcher.Constraint("Horizontal", 47, 3, 50, 3))
sketch1.addConstraint(Sketcher.Constraint("Horizontal", 48, 3, 51, 3))
sketch1.addConstraint(Sketcher.Constraint("Horizontal", 50, 3, 59, 3))
sketch1.addConstraint(Sketcher.Constraint("Horizontal", 0, 2, 1, 1))
sketch1.addConstraint(Sketcher.Constraint("Horizontal", 3, 1, 5, 1))
sketch1.addConstraint(Sketcher.Constraint("Horizontal", 25, 3, 21, 2))
sketch1.addConstraint(Sketcher.Constraint("Vertical", 7, 3, 8, 3))
sketch1.addConstraint(Sketcher.Constraint("Vertical", 14, 3, 15, 3))
sketch1.addConstraint(Sketcher.Constraint("Vertical", 8, 3, 18, 3))
sketch1.addConstraint(Sketcher.Constraint("Vertical", 17, 3, 19, 3))
sketch1.addConstraint(Sketcher.Constraint("Vertical", 26, 3, 35, 3))
sketch1.addConstraint(Sketcher.Constraint("Vertical", 13, 3, 37, 3))
sketch1.addConstraint(Sketcher.Constraint("Vertical", 9, 3, 38, 3))
sketch1.addConstraint(Sketcher.Constraint("Vertical", 11, 3, 40, 3))
sketch1.addConstraint(Sketcher.Constraint("Vertical", 18, 3, 42, 3))
sketch1.addConstraint(Sketcher.Constraint("Vertical", 40, 3, 45, 3))
sketch1.addConstraint(Sketcher.Constraint("Vertical", 47, 3, 48, 3))
sketch1.addConstraint(Sketcher.Constraint("Vertical", 16, 3, 49, 3))
sketch1.addConstraint(Sketcher.Constraint("Vertical", 50, 3, 51, 3))
sketch1.addConstraint(Sketcher.Constraint("Vertical", 43, 3, 55, 3))
sketch1.addConstraint(Sketcher.Constraint("Vertical", 45, 3, 57, 3))
sketch1.addConstraint(Sketcher.Constraint("Vertical", 29, 3, 68, 3))
sketch1.addConstraint(Sketcher.Constraint("Vertical", 68, 3, 72, 3))
sketch1.addConstraint(Sketcher.Constraint("Vertical", 70, 3, 80, 3))
sketch1.addConstraint(Sketcher.Constraint("Vertical", 3, 1, 20, 2))
sketch1.addConstraint(Sketcher.Constraint("Vertical", 5, 1, 22, 2))
sketch1.addConstraint(Sketcher.Constraint("Diameter", 14, Q("3 mm")))
sketch1.addConstraint(Sketcher.Constraint("Diameter", 59, Q("3.2 mm")))
sketch1.addConstraint(Sketcher.Constraint("Diameter", 13, Q("3.25 mm")))
sketch1.addConstraint(Sketcher.Constraint("Diameter", 17, Q("2.75 mm")))
sketch1.addConstraint(Sketcher.Constraint("DistanceX", 20, 2, 20, 1, Q("50 mm")))
sketch1.addConstraint(Sketcher.Constraint("DistanceY", 0, 2, 0, 1, Q("400 mm")))
sketch1.addConstraint(Sketcher.Constraint("Radius", 9, Q("6.35 mm")))
sketch1.addConstraint(Sketcher.Constraint("DistanceX", 10, 1, 10, 2, Q("12.7 mm")))
sketch1.addConstraint(Sketcher.Constraint("DistanceY", 21, 2, 21, 1, Q("41.5 mm")))
sketch1.addConstraint(Sketcher.Constraint("DistanceX", 14, 3, -1, 1, Q("31 mm")))
sketch1.addConstraint(Sketcher.Constraint("DistanceY", -1, 1, 17, 3, Q("166 mm")))
sketch1.addConstraint(Sketcher.Constraint("DistanceY", -1, 1, 19, 3, Q("80 mm")))
sketch1.addConstraint(Sketcher.Constraint("DistanceX", -1, 1, 0, 2, Q("175 mm")))
sketch1.addConstraint(Sketcher.Constraint("Diameter", 7, Q("7.1374 mm")))
sketch1.addConstraint(Sketcher.Constraint("DistanceY", -1, 1, 7, 3, Q("187.3 mm")))
sketch1.addConstraint(Sketcher.Constraint("DistanceY", -1, 1, 8, 3, Q("152.4 mm")))
sketch1.addConstraint(Sketcher.Constraint("DistanceX", 17, 3, -1, 1, Q("35.5 mm")))
sketch1.addConstraint(Sketcher.Constraint("DistanceY", -1, 1, 18, 3, Q("101.6 mm")))
sketch1.addConstraint(Sketcher.Constraint("DistanceX", -1, 1, 26, 3, Q("22.5 mm")))
sketch1.addConstraint(Sketcher.Constraint("DistanceY", 47, 3, -1, 1, Q("20.9 mm")))
sketch1.addConstraint(Sketcher.Constraint("DistanceY", 75, 3, -1, 1, Q("117.5 mm")))
sketch1.addConstraint(Sketcher.Constraint("DistanceY", -1, 1, 9, 2, Q("161.9 mm")))
sketch1.addConstraint(Sketcher.Constraint("DistanceY", -1, 1, 38, 2, Q("12.7 mm")))
sketch1.addConstraint(Sketcher.Constraint("DistanceX", 7, 3, -1, 1, Q("159.12 mm")))
sketch1.addConstraint(Sketcher.Constraint("DistanceX", 9, 3, -1, 1, Q("140.07 mm")))
sketch1.addConstraint(Sketcher.Constraint("DistanceX", 13, 3, -1, 1, Q("141.42 mm")))
sketch1.addConstraint(Sketcher.Constraint("DistanceY", -1, 1, 13, 3, Q("156.15 mm")))
sketch1.addConstraint(Sketcher.Constraint("DistanceX", 16, 3, -1, 1, Q("46.42 mm")))
sketch1.addConstraint(Sketcher.Constraint("DistanceY", -1, 1, 37, 3, Q("31.15 mm")))
sketch1.addConstraint(Sketcher.Constraint("DistanceX", 47, 3, -1, 1, Q("113.22 mm")))
sketch1.addConstraint(Sketcher.Constraint("DistanceY", 48, 3, -1, 1, Q("69.81 mm")))
sketch1.addConstraint(Sketcher.Constraint("DistanceX", 50, 3, -1, 1, Q("64.22 mm")))
sketch1.addConstraint(Sketcher.Constraint("DistanceY", -1, 1, 14, 3, Q("254.575131 mm")))
sketch1.addConstraint(Sketcher.Constraint("DistanceY", -1, 1, 15, 3, Q("219.575131 mm")))
pad1 = body.newObject("PartDesign::Pad", "Pad")
pad1.Profile = sketch1
pad1.Length = 12.7
pad1.Reversed = True

doc.recompute()
